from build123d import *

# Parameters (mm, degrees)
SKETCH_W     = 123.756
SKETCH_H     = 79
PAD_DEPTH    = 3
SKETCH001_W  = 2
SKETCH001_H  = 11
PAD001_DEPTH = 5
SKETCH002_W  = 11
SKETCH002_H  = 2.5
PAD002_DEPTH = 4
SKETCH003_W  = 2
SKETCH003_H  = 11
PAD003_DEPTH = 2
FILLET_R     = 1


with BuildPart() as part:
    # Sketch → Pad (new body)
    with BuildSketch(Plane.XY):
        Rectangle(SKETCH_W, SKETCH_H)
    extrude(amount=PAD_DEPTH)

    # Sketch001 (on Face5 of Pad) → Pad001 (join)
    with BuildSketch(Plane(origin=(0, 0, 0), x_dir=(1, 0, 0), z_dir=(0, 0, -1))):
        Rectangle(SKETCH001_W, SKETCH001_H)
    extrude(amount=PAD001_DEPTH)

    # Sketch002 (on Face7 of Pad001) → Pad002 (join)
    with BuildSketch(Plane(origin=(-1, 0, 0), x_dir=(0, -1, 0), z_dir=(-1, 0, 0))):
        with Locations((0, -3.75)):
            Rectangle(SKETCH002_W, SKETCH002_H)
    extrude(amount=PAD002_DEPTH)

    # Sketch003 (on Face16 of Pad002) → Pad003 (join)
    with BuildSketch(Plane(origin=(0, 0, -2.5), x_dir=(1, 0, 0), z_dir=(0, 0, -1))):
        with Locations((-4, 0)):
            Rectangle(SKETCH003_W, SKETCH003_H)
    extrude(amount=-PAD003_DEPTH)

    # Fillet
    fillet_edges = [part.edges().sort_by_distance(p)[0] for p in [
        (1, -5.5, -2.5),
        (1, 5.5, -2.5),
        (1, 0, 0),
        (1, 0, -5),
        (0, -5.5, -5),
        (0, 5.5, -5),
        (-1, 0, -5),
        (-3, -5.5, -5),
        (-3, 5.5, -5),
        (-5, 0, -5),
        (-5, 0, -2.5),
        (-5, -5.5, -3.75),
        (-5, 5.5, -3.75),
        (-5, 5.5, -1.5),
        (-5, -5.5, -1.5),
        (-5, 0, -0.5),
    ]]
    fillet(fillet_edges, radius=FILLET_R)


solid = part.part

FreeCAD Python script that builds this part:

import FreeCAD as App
import Part
import Sketcher
from FreeCAD import Vector


def edges_at(feature, points):
    """Names of the edges that pass closest to the given points."""
    edges = feature.Shape.Edges
    near = lambda p: min(range(len(edges)), key=lambda i: edges[i].distToShape(Part.Vertex(*p))[0])
    return sorted({f"Edge{near(p) + 1}" for p in points})


def add_polygon(sketch, points):
    """Adds a closed chain of lines whose ends are joined by coincident constraints."""
    first, n = sketch.GeometryCount, len(points)
    for a, b in zip(points, points[1:] + points[:1]):
        sketch.addGeometry(Part.LineSegment(App.Vector(*a, 0), App.Vector(*b, 0)), False)
    for i in range(n):
        sketch.addConstraint(Sketcher.Constraint("Coincident", first + i, 2, first + (i + 1) % n, 1))

doc = App.newDocument("Part")
body = doc.addObject("PartDesign::Body", "Body")

# Sketch on XY plane
sketch1 = doc.addObject("Sketcher::SketchObject", "Sketch")
body.addObject(sketch1)
sketch1.AttachmentSupport = (doc.XY_Plane, [""])
sketch1.MapMode = "FlatFace"
add_polygon(sketch1, [(-61.878, 39.5), (-61.878, -39.5), (61.878, -39.5), (61.878, 39.5)])  # lines 0-3
sketch1.addConstraint([
    Sketcher.Constraint("Vertical", 0),
    Sketcher.Constraint("Horizontal", 1),
    Sketcher.Constraint("Vertical", 2),
    Sketcher.Constraint("Horizontal", 3),
    Sketcher.Constraint("Symmetric", 0, 2, 2, 2, -1, 1),
    Sketcher.Constraint("DistanceY", 0, 2, 0, 1, 79.0),
    Sketcher.Constraint("DistanceX", 1, 1, 1, 2, 123.756),
])
pad1 = doc.addObject("PartDesign::Pad", "Pad")
body.addObject(pad1)
pad1.Profile = sketch1
pad1.Length = 3

# Sketch on XY plane
sketch2 = doc.addObject("Sketcher::SketchObject", "Sketch001")
body.addObject(sketch2)
sketch2.AttachmentSupport = (doc.XY_Plane, [""])
sketch2.MapMode = "FlatFace"
add_polygon(sketch2, [(-1, -5.5), (-1, 5.5), (1, 5.5), (1, -5.5)])  # lines 0-3
sketch2.addConstraint([
    Sketcher.Constraint("Vertical", 0),
    Sketcher.Constraint("Horizontal", 1),
    Sketcher.Constraint("Vertical", 2),
    Sketcher.Constraint("Horizontal", 3),
    Sketcher.Constraint("Symmetric", 0, 2, 2, 2, -1, 1),
    Sketcher.Constraint("DistanceX", 1, 1, 1, 2, 2.0),
    Sketcher.Constraint("DistanceY", 0, 1, 0, 2, 11.0),
])
pad2 = doc.addObject("PartDesign::Pad", "Pad001")
body.addObject(pad2)
pad2.Profile = sketch2
pad2.Length = 5
pad2.Reversed = True

# Sketch on YZ plane
sketch3 = doc.addObject("Sketcher::SketchObject", "Sketch002")
body.addObject(sketch3)
sketch3.AttachmentSupport = (doc.YZ_Plane, [""])
sketch3.MapMode = "FlatFace"
sketch3.AttachmentOffset = App.Placement(Vector(0, 0, -1), App.Rotation())
add_polygon(sketch3, [(5.5, -2.5), (5.5, -5), (-5.5, -5), (-5.5, -2.5)])  # lines 0-3
sketch3.addConstraint([
    Sketcher.Constraint("Vertical", 0),
    Sketcher.Constraint("Horizontal", 1),
    Sketcher.Constraint("Vertical", 2),
    Sketcher.Constraint("Horizontal", 3),
    Sketcher.Constraint("DistanceX", 1, 2, 1, 1, 11.0),
    Sketcher.Constraint("DistanceY", 0, 2, 0, 1, 2.5),
    Sketcher.Constraint("DistanceY", 0, 2, -1, 1, 5.0),
    Sketcher.Constraint("DistanceX", -1, 1, 0, 2, 5.5),
])
pad3 = doc.addObject("PartDesign::Pad", "Pad002")
body.addObject(pad3)
pad3.Profile = sketch3
pad3.Length = 4
pad3.Reversed = True

# Sketch on XY plane
sketch4 = doc.addObject("Sketcher::SketchObject", "Sketch003")
body.addObject(sketch4)
sketch4.AttachmentSupport = (doc.XY_Plane, [""])
sketch4.MapMode = "FlatFace"
sketch4.AttachmentOffset = App.Placement(Vector(0, 0, -2.5), App.Rotation())
add_polygon(sketch4, [(-5, -5.5), (-5, 5.5), (-3, 5.5), (-3, -5.5)])  # lines 0-3
sketch4.addConstraint([
    Sketcher.Constraint("Vertical", 0),
    Sketcher.Constraint("Horizontal", 1),
    Sketcher.Constraint("Vertical", 2),
    Sketcher.Constraint("Horizontal", 3),
    Sketcher.Constraint("DistanceX", 1, 1, 1, 2, 2.0),
    Sketcher.Constraint("DistanceY", 0, 1, 0, 2, 11.0),
    Sketcher.Constraint("DistanceX", 0, 2, -1, 1, 5.0),
    Sketcher.Constraint("DistanceY", -1, 1, 0, 2, 5.5),
])
pad4 = doc.addObject("PartDesign::Pad", "Pad003")
body.addObject(pad4)
pad4.Profile = sketch4
pad4.Length = 2
doc.recompute()

fillet = doc.addObject("PartDesign::Fillet", "Fillet")
body.addObject(fillet)
fillet.Base = (pad4, edges_at(pad4, [
    (1, -5.5, -2.5),
    (1, 5.5, -2.5),
    (1, 0, 0),
    (1, 0, -5),
    (-2, -5.5, -5),
    (-2, 5.5, -5),
    (1, 0, -5),
    (-2, -5.5, -5),
    (-2, 5.5, -5),
    (-5, 0, -5),
    (-5, 0, -0.5),
    (-5, -5.5, -2.75),
    (-5, 5.5, -2.75),
    (-5, 5.5, -2.75),
    (-5, -5.5, -2.75),
    (-5, 0, -0.5),
]))
fillet.Radius = 1

doc.recompute()
